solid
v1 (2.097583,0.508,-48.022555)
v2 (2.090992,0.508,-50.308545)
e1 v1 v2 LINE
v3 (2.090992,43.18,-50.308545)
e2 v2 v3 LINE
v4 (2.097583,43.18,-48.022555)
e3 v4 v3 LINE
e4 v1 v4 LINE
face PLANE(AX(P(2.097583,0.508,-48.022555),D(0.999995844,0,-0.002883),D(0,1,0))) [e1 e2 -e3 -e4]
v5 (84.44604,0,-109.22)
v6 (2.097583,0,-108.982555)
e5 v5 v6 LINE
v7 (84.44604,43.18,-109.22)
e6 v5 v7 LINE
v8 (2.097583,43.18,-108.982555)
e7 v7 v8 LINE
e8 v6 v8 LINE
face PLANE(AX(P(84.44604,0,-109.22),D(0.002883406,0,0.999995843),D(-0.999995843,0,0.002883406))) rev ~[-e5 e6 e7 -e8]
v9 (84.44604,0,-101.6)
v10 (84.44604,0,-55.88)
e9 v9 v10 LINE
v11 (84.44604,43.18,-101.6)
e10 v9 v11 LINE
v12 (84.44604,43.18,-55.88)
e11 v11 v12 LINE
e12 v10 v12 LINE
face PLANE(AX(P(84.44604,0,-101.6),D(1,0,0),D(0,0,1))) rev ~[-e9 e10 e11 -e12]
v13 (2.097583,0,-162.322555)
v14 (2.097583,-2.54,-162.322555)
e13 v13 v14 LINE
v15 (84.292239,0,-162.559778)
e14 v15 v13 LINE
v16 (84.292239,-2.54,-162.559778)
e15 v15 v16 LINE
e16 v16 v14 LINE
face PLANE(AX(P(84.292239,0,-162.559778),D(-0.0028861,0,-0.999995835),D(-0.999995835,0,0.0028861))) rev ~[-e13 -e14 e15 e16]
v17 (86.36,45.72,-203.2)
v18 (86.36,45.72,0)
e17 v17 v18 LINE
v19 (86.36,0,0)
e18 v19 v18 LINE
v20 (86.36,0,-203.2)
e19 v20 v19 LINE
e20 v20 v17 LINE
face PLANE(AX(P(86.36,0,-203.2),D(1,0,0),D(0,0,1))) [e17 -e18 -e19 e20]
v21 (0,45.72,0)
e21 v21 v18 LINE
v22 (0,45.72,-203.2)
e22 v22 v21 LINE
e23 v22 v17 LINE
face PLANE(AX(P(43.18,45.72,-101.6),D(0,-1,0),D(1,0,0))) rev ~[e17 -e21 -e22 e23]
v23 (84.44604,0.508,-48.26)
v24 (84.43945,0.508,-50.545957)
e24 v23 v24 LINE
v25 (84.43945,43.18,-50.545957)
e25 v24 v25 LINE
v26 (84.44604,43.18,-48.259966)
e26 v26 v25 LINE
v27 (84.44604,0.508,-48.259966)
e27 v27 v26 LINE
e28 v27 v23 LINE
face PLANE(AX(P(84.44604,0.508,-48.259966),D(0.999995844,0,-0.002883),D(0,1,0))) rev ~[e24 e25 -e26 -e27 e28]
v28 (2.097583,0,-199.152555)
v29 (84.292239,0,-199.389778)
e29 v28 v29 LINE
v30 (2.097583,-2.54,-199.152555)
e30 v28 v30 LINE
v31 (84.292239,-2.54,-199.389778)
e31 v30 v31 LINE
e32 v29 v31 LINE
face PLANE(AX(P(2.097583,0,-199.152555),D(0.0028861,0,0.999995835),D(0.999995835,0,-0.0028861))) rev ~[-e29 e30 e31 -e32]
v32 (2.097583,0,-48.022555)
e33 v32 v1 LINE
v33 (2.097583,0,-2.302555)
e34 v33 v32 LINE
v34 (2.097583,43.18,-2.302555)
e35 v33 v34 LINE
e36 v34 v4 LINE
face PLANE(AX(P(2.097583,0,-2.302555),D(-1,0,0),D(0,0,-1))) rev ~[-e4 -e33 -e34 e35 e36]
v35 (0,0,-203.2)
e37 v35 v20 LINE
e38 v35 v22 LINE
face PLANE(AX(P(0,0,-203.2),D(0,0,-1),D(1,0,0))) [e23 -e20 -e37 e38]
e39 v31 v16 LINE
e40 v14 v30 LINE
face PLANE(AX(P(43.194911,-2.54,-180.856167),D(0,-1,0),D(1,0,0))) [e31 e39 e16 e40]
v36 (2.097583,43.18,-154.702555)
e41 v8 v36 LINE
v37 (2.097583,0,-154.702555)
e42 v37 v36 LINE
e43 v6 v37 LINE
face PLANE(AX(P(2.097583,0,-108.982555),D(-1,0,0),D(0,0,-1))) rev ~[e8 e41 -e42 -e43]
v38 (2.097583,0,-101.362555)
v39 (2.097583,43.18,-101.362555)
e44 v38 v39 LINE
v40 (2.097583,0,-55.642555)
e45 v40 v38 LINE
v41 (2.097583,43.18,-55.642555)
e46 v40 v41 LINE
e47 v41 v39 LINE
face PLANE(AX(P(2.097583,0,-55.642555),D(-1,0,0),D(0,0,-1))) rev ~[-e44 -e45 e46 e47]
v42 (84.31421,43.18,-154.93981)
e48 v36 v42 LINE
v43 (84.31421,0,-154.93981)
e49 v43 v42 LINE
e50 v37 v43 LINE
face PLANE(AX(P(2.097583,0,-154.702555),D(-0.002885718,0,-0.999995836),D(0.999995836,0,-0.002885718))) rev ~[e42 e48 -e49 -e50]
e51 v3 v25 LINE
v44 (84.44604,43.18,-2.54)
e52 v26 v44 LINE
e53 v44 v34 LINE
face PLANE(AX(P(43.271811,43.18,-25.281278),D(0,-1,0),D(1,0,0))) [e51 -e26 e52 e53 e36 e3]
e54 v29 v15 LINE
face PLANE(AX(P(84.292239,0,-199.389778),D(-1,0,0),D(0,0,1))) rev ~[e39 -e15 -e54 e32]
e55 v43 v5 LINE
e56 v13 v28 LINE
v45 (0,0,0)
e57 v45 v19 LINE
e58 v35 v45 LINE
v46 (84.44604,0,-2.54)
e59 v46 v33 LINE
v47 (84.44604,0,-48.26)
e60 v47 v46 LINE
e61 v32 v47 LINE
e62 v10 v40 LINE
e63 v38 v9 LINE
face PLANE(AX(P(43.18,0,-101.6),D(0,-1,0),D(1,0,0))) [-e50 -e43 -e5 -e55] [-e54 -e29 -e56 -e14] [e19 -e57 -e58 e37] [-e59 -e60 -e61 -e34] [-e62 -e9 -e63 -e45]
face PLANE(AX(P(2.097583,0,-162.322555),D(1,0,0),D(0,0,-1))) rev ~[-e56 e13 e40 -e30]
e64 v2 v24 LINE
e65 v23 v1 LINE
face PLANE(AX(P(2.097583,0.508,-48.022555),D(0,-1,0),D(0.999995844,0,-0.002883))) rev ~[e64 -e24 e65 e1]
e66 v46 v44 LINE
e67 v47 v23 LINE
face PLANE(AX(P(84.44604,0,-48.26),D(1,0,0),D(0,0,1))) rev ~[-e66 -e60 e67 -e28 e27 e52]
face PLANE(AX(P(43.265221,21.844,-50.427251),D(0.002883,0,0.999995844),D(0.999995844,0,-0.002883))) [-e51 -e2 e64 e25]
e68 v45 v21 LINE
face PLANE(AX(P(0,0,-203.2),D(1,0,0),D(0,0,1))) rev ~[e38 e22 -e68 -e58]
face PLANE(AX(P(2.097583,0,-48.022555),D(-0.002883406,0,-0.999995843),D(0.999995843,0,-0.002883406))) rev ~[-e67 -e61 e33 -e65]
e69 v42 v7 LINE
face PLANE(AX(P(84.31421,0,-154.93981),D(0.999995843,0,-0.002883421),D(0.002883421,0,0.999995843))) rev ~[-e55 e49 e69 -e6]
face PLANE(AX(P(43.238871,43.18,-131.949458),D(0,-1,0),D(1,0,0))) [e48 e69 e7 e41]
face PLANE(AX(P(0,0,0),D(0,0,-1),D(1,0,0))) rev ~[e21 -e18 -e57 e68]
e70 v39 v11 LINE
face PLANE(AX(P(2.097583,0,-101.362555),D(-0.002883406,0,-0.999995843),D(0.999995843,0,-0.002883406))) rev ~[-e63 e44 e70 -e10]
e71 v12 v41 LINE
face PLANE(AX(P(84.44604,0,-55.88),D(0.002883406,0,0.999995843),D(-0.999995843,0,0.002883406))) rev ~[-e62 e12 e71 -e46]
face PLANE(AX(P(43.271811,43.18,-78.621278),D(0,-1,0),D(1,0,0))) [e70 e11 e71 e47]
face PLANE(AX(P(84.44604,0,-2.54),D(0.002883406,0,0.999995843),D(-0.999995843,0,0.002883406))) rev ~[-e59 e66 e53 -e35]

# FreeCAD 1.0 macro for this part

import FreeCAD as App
import Part
import Sketcher
from FreeCAD import Vector
Q = App.Units.Quantity


def add_polygon(sketch, points):
    """Adds a closed chain of lines whose ends are joined by coincident constraints."""
    first, n = sketch.GeometryCount, len(points)
    for a, b in zip(points, points[1:] + points[:1]):
        sketch.addGeometry(Part.LineSegment(App.Vector(*a, 0), App.Vector(*b, 0)), False)
    for i in range(n):
        sketch.addConstraint(Sketcher.Constraint("Coincident", first + i, 2, first + (i + 1) % n, 1))

doc = App.newDocument("Part")
body = doc.addObject("PartDesign::Body", "Body")

sketch1 = body.newObject("Sketcher::SketchObject", "Sketch")
sketch1.AttachmentSupport = (doc.getObject("XZ_Plane"), [""])
sketch1.MapMode = "FlatFace"
add_polygon(sketch1, [(0, 0), (0, -203), (86, -203), (86, 0)])
sketch1.addConstraint(Sketcher.Constraint("Vertical", 0))
sketch1.addConstraint(Sketcher.Constraint("Horizontal", 1))
sketch1.addConstraint(Sketcher.Constraint("Vertical", 2))
sketch1.addConstraint(Sketcher.Constraint("Horizontal", 3))
sketch1.addConstraint(Sketcher.Constraint("Coincident", 3, 2, -1, 1))
sketch1.addConstraint(Sketcher.Constraint("DistanceY", 0, 2, 0, 1, Q("8 in")))
sketch1.addConstraint(Sketcher.Constraint("DistanceX", 1, 1, 1, 2, Q("3.4 in")))
pad1 = body.newObject("PartDesign::Pad", "Pad")
pad1.Profile = sketch1
pad1.Length = Q("1.8 in")
pad1.Reversed = True

sketch2 = body.newObject("Sketcher::SketchObject", "Sketch001")
sketch2.AttachmentSupport = (doc.getObject("XZ_Plane"), [""])
sketch2.MapMode = "FlatFace"
add_polygon(sketch2, [(84, -3), (2, -2), (2, -48), (84, -48)])
add_polygon(sketch2, [(84, -102), (84, -56), (2, -56), (2, -101)])
add_polygon(sketch2, [(84, -155), (84, -109), (2, -109), (2, -155)])
sketch2.addConstraint(Sketcher.Constraint("Vertical", 1))
sketch2.addConstraint(Sketcher.Constraint("Vertical", 3))
sketch2.addConstraint(Sketcher.Constraint("Vertical", 4))
sketch2.addConstraint(Sketcher.Constraint("Vertical", 6))
sketch2.addConstraint(Sketcher.Constraint("Vertical", 10))
sketch2.addConstraint(Sketcher.Constraint("Parallel", 0, 2))
sketch2.addConstraint(Sketcher.Constraint("Parallel", 2, 5))
sketch2.addConstraint(Sketcher.Constraint("Parallel", 5, 7))
sketch2.addConstraint(Sketcher.Constraint("Perpendicular", 7, 8))
sketch2.addConstraint(Sketcher.Constraint("Perpendicular", 8, 9))
sketch2.addConstraint(Sketcher.Constraint("Vertical", 3, 2, 4, 2))
sketch2.addConstraint(Sketcher.Constraint("Vertical", 1, 2, 5, 2))
sketch2.addConstraint(Sketcher.Constraint("Vertical", 7, 2, 8, 2))
sketch2.addConstraint(Sketcher.Constraint("Vertical", 6, 2, 9, 2))
sketch2.addConstraint(Sketcher.Constraint("Equal", 3, 4))
sketch2.addConstraint(Sketcher.Constraint("Equal", 6, 10))
sketch2.addConstraint(Sketcher.Constraint("DistanceY", 1, 2, 1, 1, Q("1.8 in")))
sketch2.addConstraint(Sketcher.Constraint("DistanceY", 7, 2, -1, 1, Q("4 in")))
sketch2.addConstraint(Sketcher.Constraint("Distance", 8, Q("1.8 in")))
sketch2.addConstraint(Sketcher.Constraint("DistanceY", 2, 2, -1, 1, Q("1.9 in")))
sketch2.addConstraint(Sketcher.Constraint("DistanceY", 8, 2, -1, 1, Q("4.3 in")))
sketch2.addConstraint(Sketcher.Constraint("Distance", 0, Q("82.348799 mm")))
sketch2.addConstraint(Sketcher.Constraint("Distance", 11, Q("82.216969 mm")))
sketch2.addConstraint(Sketcher.Constraint("DistanceX", -1, 1, 2, 2, Q("84.44604 mm")))
pocket1 = body.newObject("PartDesign::Pocket", "Pocket")
pocket1.Profile = sketch2
pocket1.Length = Q("1.7 in")

sketch3 = body.newObject("Sketcher::SketchObject", "Sketch002")
sketch3.AttachmentSupport = (doc.getObject("XZ_Plane"), [""])
sketch3.MapMode = "FlatFace"
add_polygon(sketch3, [(84, -199), (84, -163), (2, -162), (2, -199)])
sketch3.addConstraint(Sketcher.Constraint("Vertical", 0))
sketch3.addConstraint(Sketcher.Constraint("Vertical", 2))
sketch3.addConstraint(Sketcher.Constraint("Parallel", 1, 3))
sketch3.addConstraint(Sketcher.Constraint("DistanceY", 0, 1, 0, 2, Q("1.45 in")))
sketch3.addConstraint(Sketcher.Constraint("Distance", 1, Q("82.194998 mm")))
sketch3.addConstraint(Sketcher.Constraint("DistanceX", -1, 1, 0, 2, Q("84.292239 mm")))
sketch3.addConstraint(Sketcher.Constraint("DistanceY", 0, 2, -1, 1, Q("162.559778 mm")))
sketch3.addConstraint(Sketcher.Constraint("DistanceY", 1, 2, -1, 1, Q("162.322555 mm")))
pad2 = body.newObject("PartDesign::Pad", "Pad001")
pad2.Profile = sketch3
pad2.Length = Q("0.1 in")

sketch4 = body.newObject("Sketcher::SketchObject", "Sketch003")
sketch4.Placement = App.Placement(Vector(-0.13845, 0, -48.016108), App.Rotation(Vector(0.999995844, 0, -0.002883), Vector(0, 1, 0), Vector(0.002883, 0, 0.999995844), "ZXY"))
add_polygon(sketch4, [(2, 43), (2, 1), (85, 1), (85, 43)])
sketch4.addConstraint(Sketcher.Constraint("Vertical", 0))
sketch4.addConstraint(Sketcher.Constraint("Horizontal", 1))
sketch4.addConstraint(Sketcher.Constraint("Vertical", 2))
sketch4.addConstraint(Sketcher.Constraint("Horizontal", 3))
sketch4.addConstraint(Sketcher.Constraint("DistanceY", 0, 2, 0, 1, Q("1.68 in")))
sketch4.addConstraint(Sketcher.Constraint("DistanceY", -1, 1, 2, 2, Q("1.7 in")))
sketch4.addConstraint(Sketcher.Constraint("DistanceX", 1, 1, 1, 2, Q("82.3488 mm")))
sketch4.addConstraint(Sketcher.Constraint("DistanceX", -1, 1, 0, 2, Q("2.236042 mm")))
pocket2 = body.newObject("PartDesign::Pocket", "Pocket001")
pocket2.Profile = sketch4
pocket2.Length = Q("0.09 in")

doc.recompute()
